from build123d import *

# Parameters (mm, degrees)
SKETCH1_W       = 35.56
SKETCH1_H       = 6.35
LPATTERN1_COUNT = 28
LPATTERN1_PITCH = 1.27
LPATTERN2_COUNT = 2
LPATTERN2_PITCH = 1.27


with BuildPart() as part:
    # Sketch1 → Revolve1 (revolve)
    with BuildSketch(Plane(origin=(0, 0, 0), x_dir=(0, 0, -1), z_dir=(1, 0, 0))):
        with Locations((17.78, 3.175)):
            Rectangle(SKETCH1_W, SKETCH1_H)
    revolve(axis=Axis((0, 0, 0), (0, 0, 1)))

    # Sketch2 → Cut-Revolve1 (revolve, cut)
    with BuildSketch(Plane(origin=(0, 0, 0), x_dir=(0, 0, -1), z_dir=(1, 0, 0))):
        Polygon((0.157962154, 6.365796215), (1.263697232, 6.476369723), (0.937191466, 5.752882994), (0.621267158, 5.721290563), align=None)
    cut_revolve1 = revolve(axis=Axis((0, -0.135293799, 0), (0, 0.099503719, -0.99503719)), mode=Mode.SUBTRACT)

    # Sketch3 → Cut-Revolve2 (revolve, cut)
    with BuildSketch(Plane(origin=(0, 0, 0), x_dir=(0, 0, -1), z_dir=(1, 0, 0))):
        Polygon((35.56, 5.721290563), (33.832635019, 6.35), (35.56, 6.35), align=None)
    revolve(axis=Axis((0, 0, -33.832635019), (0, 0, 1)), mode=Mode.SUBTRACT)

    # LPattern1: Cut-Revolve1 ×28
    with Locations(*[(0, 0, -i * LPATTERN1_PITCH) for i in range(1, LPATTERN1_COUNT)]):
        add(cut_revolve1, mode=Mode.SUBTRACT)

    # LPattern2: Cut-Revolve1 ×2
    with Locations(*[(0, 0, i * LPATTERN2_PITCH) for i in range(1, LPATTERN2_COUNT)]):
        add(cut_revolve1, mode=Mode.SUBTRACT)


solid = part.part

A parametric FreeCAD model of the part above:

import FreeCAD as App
import Part
import Sketcher

V = App.Vector
Q = App.Units.Quantity


def add_polygon(sketch, points):
    """Adds a closed chain of lines whose ends are joined by coincident constraints."""
    first, n = sketch.GeometryCount, len(points)
    for a, b in zip(points, points[1:] + points[:1]):
        sketch.addGeometry(Part.LineSegment(App.Vector(*a, 0), App.Vector(*b, 0)), False)
    for i in range(n):
        sketch.addConstraint(Sketcher.Constraint("Coincident", first + i, 2, first + (i + 1) % n, 1))

doc = App.newDocument("Part")
body = doc.addObject("PartDesign::Body", "Body")

# Sketch on YZ plane
sketch1 = doc.addObject("Sketcher::SketchObject", "Sketch")
body.addObject(sketch1)
sketch1.AttachmentSupport = (doc.YZ_Plane, [""])
sketch1.MapMode = "FlatFace"
add_polygon(sketch1, [(6.35, 0), (0, 0), (0, -35.56), (6.35, -35.56)])  # lines 0-3
sketch1.addConstraint([
    Sketcher.Constraint("Horizontal", 0),
    Sketcher.Constraint("Vertical", 1),
    Sketcher.Constraint("Horizontal", 2),
    Sketcher.Constraint("Vertical", 3),
    Sketcher.Constraint("Coincident", 0, 2, -1, 1),
    Sketcher.Constraint("DistanceY", 1, 2, 1, 1, Q("1.4 in")),
    Sketcher.Constraint("DistanceX", 0, 2, 0, 1, Q("0.25 in")),
])
revolution = doc.addObject("PartDesign::Revolution", "Revolution")
body.addObject(revolution)
revolution.Profile = sketch1
revolution.ReferenceAxis = (sketch1, ["V_Axis"])
revolution.Angle = 360

# Sketch on YZ plane
sketch2 = doc.addObject("Sketcher::SketchObject", "Sketch001")
body.addObject(sketch2)
sketch2.AttachmentSupport = (doc.YZ_Plane, [""])
sketch2.MapMode = "FlatFace"
add_polygon(sketch2, [(6.47637, -1.263697), (6.365796, -0.157962), (5.721291, -0.621267), (5.752883, -0.937191)])  # lines 0-3
sketch2.addGeometry(Part.LineSegment(V(-0.055287, -0.80007, 0), V(0.055287, -1.905806, 0)), True)  # axis
sketch2.addConstraint([
    Sketcher.Constraint("Parallel", 0, 2),
    Sketcher.Constraint("Parallel", 2, 4),
    Sketcher.Constraint("Equal", 1, 3),
    Sketcher.Constraint("Equal", 0, 4),
    Sketcher.Constraint("Distance", 1, Q("0.03125 in")),
    Sketcher.Constraint("Distance", 2, Q("0.0125 in")),
    Sketcher.Constraint("Distance", 0, 1.11125),
    Sketcher.Constraint("DistanceX", -1, 1, 1, 2, 5.721291),
    Sketcher.Constraint("DistanceY", 2, 2, -1, 1, 0.937191),
    Sketcher.Constraint("DistanceX", -1, 1, 3, 2, 6.47637),
    Sketcher.Constraint("DistanceY", 4, 1, -1, 1, 0.80007),
    Sketcher.Constraint("DistanceX", 4, 1, 2, 2, 5.80817),
])
groove = doc.addObject("PartDesign::Groove", "Groove")
body.addObject(groove)
groove.Profile = sketch2
groove.ReferenceAxis = (sketch2, ["Axis0"])
groove.Angle = 360

# Sketch on YZ plane
sketch3 = doc.addObject("Sketcher::SketchObject", "Sketch002")
body.addObject(sketch3)
sketch3.AttachmentSupport = (doc.YZ_Plane, [""])
sketch3.MapMode = "FlatFace"
add_polygon(sketch3, [(6.35, -33.832635), (5.721291, -35.56), (6.35, -35.56)])  # lines 0-2
sketch3.addConstraint([
    Sketcher.Constraint("Horizontal", 1),
    Sketcher.Constraint("Vertical", 2),
    Sketcher.Constraint("Angle", 0, Q("-110 deg")),
    Sketcher.Constraint("DistanceY", 0, 2, -1, 1, Q("1.4 in")),
    Sketcher.Constraint("DistanceX", -1, 1, 1, 2, Q("0.25 in")),
    Sketcher.Constraint("DistanceX", 1, 1, 1, 2, 0.628709),
])
groove2 = doc.addObject("PartDesign::Groove", "Groove001")
body.addObject(groove2)
groove2.Profile = sketch3
groove2.ReferenceAxis = (sketch3, ["V_Axis"])
groove2.Angle = 360
doc.recompute()

linearpattern = doc.addObject("PartDesign::LinearPattern", "LinearPattern")
body.addObject(linearpattern)
linearpattern.Originals = [groove]
linearpattern.Direction = (doc.Z_Axis, [""])
linearpattern.Mode = "offset"
linearpattern.Offset = Q("0.05 in")
linearpattern.Occurrences = 28
linearpattern.Reversed = True
body.Tip = linearpattern
doc.recompute()

linearpattern2 = doc.addObject("PartDesign::LinearPattern", "LinearPattern001")
body.addObject(linearpattern2)
linearpattern2.Originals = [groove]
linearpattern2.Direction = (doc.Z_Axis, [""])
linearpattern2.Mode = "offset"
linearpattern2.Offset = Q("0.05 in")
linearpattern2.Occurrences = 2
body.Tip = linearpattern2

doc.recompute()
